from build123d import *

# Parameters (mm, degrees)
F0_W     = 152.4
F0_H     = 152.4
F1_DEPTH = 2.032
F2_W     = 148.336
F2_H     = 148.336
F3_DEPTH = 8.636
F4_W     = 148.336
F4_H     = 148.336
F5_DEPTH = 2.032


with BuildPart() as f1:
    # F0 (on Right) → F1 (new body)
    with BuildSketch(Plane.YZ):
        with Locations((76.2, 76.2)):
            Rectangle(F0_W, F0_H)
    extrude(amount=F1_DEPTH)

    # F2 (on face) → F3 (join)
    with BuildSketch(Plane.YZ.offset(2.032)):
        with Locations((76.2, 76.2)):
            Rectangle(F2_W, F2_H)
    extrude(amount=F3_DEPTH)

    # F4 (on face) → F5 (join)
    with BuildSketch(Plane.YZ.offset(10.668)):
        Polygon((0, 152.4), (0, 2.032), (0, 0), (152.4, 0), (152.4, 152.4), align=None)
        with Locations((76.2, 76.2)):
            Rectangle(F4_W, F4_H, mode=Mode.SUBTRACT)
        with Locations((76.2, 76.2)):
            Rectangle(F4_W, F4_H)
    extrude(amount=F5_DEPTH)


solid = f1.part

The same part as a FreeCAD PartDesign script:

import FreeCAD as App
import Part
import Sketcher

V = App.Vector
Q = App.Units.Quantity


def add_polygon(sketch, points):
    """Adds a closed chain of lines whose ends are joined by coincident constraints."""
    first, n = sketch.GeometryCount, len(points)
    for a, b in zip(points, points[1:] + points[:1]):
        sketch.addGeometry(Part.LineSegment(App.Vector(*a, 0), App.Vector(*b, 0)), False)
    for i in range(n):
        sketch.addConstraint(Sketcher.Constraint("Coincident", first + i, 2, first + (i + 1) % n, 1))

doc = App.newDocument("Part")
params = doc.addObject("Spreadsheet::Sheet", "Params")
for row, (alias, value) in enumerate([
    ("sketch1_width", "6 in"),
    ("pad1_length", "0.08 in"),
    ("sketch2_width", "5.84 in"),
    ("pad2_length", "0.34 in"),
    ("sketch3_width", "6 in"),
    ("pad3_length", "0.08 in"),
], start=1):
    params.set(f"A{row}", alias)
    params.set(f"B{row}", "=" + value)
    params.setAlias(f"B{row}", alias)

body = doc.addObject("PartDesign::Body", "Body")

sketch1 = doc.addObject("Sketcher::SketchObject", "Sketch")
body.addObject(sketch1)
sketch1.AttachmentSupport = (doc.YZ_Plane, [""])
sketch1.MapMode = "FlatFace"
add_polygon(sketch1, [(0, 152), (0, 0), (152, 0), (152, 152)])
sketch1.addConstraint(Sketcher.Constraint("Vertical", 0))
sketch1.addConstraint(Sketcher.Constraint("Horizontal", 1))
sketch1.addConstraint(Sketcher.Constraint("Vertical", 2))
sketch1.addConstraint(Sketcher.Constraint("Horizontal", 3))
sketch1.addConstraint(Sketcher.Constraint("Coincident", 0, 2, -1, 1))
sketch1.addConstraint(Sketcher.Constraint("Equal", 3, 0))
sketch1.addConstraint(Sketcher.Constraint("DistanceX", 1, 1, 1, 2, Q("6 in")))
sketch1.setExpression("Constraints[10]", "Params.sketch1_width")
pad1 = doc.addObject("PartDesign::Pad", "Pad")
body.addObject(pad1)
pad1.Profile = sketch1
pad1.setExpression("Length", "Params.pad1_length")

sketch2 = doc.addObject("Sketcher::SketchObject", "Sketch001")
body.addObject(sketch2)
sketch2.AttachmentSupport = (doc.YZ_Plane, [""])
sketch2.MapMode = "FlatFace"
sketch2.AttachmentOffset = App.Placement(V(0, 0, 0.08 * 25.4), App.Rotation())
add_polygon(sketch2, [(2, 150), (2, 2), (150, 2), (150, 150)])
sketch2.addConstraint(Sketcher.Constraint("Vertical", 0))
sketch2.addConstraint(Sketcher.Constraint("Horizontal", 1))
sketch2.addConstraint(Sketcher.Constraint("Vertical", 2))
sketch2.addConstraint(Sketcher.Constraint("Horizontal", 3))
sketch2.addConstraint(Sketcher.Constraint("Equal", 3, 0))
sketch2.addConstraint(Sketcher.Constraint("DistanceX", 1, 1, 1, 2, Q("5.84 in")))
sketch2.addConstraint(Sketcher.Constraint("DistanceX", -1, 1, 0, 2, Q("0.08 in")))
sketch2.addConstraint(Sketcher.Constraint("DistanceY", -1, 1, 0, 2, Q("0.08 in")))
sketch2.setExpression("Constraints[9]", "Params.sketch2_width")
pad2 = doc.addObject("PartDesign::Pad", "Pad001")
body.addObject(pad2)
pad2.Profile = sketch2
pad2.setExpression("Length", "Params.pad2_length")

sketch3 = doc.addObject("Sketcher::SketchObject", "Sketch002")
body.addObject(sketch3)
sketch3.AttachmentSupport = (doc.YZ_Plane, [""])
sketch3.MapMode = "FlatFace"
sketch3.AttachmentOffset = App.Placement(V(0, 0, 0.42 * 25.4), App.Rotation())
add_polygon(sketch3, [(0, 152), (0, 0), (152, 0), (152, 152)])
sketch3.addConstraint(Sketcher.Constraint("Vertical", 0))
sketch3.addConstraint(Sketcher.Constraint("Horizontal", 1))
sketch3.addConstraint(Sketcher.Constraint("Vertical", 2))
sketch3.addConstraint(Sketcher.Constraint("Horizontal", 3))
sketch3.addConstraint(Sketcher.Constraint("Coincident", 0, 2, -1, 1))
sketch3.addConstraint(Sketcher.Constraint("Equal", 3, 0))
sketch3.addConstraint(Sketcher.Constraint("DistanceX", 1, 1, 1, 2, Q("6 in")))
sketch3.setExpression("Constraints[10]", "Params.sketch3_width")
pad3 = doc.addObject("PartDesign::Pad", "Pad002")
body.addObject(pad3)
pad3.Profile = sketch3
pad3.setExpression("Length", "Params.pad3_length")

doc.recompute()
